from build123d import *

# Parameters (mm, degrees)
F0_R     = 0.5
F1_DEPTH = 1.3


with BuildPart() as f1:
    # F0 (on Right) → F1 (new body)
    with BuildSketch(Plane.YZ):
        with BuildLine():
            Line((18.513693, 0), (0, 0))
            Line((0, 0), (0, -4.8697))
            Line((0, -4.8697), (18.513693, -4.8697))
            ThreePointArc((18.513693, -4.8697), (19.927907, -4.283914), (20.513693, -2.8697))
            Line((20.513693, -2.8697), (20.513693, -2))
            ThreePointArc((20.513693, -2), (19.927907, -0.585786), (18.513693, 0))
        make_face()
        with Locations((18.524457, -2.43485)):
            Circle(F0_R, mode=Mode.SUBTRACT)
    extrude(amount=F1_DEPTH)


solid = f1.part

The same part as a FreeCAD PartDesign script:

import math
import FreeCAD as App
import Part
import Sketcher

V = App.Vector

doc = App.newDocument("Part")
params = doc.addObject("Spreadsheet::Sheet", "Params")
for row, (alias, value) in enumerate([
    ("sketch1_diameter", "1 mm"),
    ("sketch1_radius", "1.999999 mm"),
    ("pad1_length", "1.3 mm"),
], start=1):
    params.set(f"A{row}", alias)
    params.set(f"B{row}", "=" + value)
    params.setAlias(f"B{row}", alias)

body = doc.addObject("PartDesign::Body", "Body")

# Sketch on YZ plane
sketch1 = doc.addObject("Sketcher::SketchObject", "Sketch")
body.addObject(sketch1)
sketch1.AttachmentSupport = (doc.YZ_Plane, [""])
sketch1.MapMode = "FlatFace"
sketch1.addGeometry([
    Part.LineSegment(V(18.5, 0, 0), V(0, 0, 0)),  # 0
    Part.LineSegment(V(0, 0, 0), V(0, -4.9, 0)),  # 1
    Part.LineSegment(V(0, -4.9, 0), V(18.5, -4.9, 0)),  # 2
    Part.ArcOfCircle(Part.Circle(V(18.5, -2.9, 0), V(0, 0, 1), 2), math.radians(-90), math.radians(0)),  # 3
    Part.LineSegment(V(20.5, -2.9, 0), V(20.5, -2, 0)),  # 4
    Part.ArcOfCircle(Part.Circle(V(18.5, -2, 0), V(0, 0, 1), 2), math.radians(0), math.radians(90)),  # 5
    Part.Circle(V(18.5, -2.4, 0), V(0, 0, 1), 0.5),  # 6
], False)
sketch1.addConstraint([
    Sketcher.Constraint("Coincident", 0, 2, 1, 1),
    Sketcher.Constraint("Coincident", 1, 2, 2, 1),
    Sketcher.Constraint("Tangent", 2, 2, 3, 1),
    Sketcher.Constraint("Tangent", 3, 2, 4, 1),
    Sketcher.Constraint("Tangent", 4, 2, 5, 1),
    Sketcher.Constraint("Tangent", 5, 2, 0, 1),
    Sketcher.Constraint("Horizontal", 0),
    Sketcher.Constraint("Vertical", 1),
    Sketcher.Constraint("Horizontal", 2),
    Sketcher.Constraint("Vertical", 4),
    Sketcher.Constraint("Coincident", 0, 2, -1, 1),
    Sketcher.Constraint("Equal", 3, 5),
    Sketcher.Constraint("Diameter", 6, 1.0),
    Sketcher.Constraint("Radius", 3, 1.999999),
    Sketcher.Constraint("DistanceY", 1, 2, 1, 1, 4.8697),
    Sketcher.Constraint("DistanceX", 0, 2, 0, 1, 18.513693),
    Sketcher.Constraint("DistanceY", 6, 3, -1, 1, 2.43485),
    Sketcher.Constraint("DistanceX", -1, 1, 6, 3, 18.524457),
])
sketch1.setExpression("Constraints[12]", "Params.sketch1_diameter")
sketch1.setExpression("Constraints[13]", "Params.sketch1_radius")
pad1 = doc.addObject("PartDesign::Pad", "Pad")
body.addObject(pad1)
pad1.Profile = sketch1
pad1.setExpression("Length", "Params.pad1_length")

doc.recompute()
